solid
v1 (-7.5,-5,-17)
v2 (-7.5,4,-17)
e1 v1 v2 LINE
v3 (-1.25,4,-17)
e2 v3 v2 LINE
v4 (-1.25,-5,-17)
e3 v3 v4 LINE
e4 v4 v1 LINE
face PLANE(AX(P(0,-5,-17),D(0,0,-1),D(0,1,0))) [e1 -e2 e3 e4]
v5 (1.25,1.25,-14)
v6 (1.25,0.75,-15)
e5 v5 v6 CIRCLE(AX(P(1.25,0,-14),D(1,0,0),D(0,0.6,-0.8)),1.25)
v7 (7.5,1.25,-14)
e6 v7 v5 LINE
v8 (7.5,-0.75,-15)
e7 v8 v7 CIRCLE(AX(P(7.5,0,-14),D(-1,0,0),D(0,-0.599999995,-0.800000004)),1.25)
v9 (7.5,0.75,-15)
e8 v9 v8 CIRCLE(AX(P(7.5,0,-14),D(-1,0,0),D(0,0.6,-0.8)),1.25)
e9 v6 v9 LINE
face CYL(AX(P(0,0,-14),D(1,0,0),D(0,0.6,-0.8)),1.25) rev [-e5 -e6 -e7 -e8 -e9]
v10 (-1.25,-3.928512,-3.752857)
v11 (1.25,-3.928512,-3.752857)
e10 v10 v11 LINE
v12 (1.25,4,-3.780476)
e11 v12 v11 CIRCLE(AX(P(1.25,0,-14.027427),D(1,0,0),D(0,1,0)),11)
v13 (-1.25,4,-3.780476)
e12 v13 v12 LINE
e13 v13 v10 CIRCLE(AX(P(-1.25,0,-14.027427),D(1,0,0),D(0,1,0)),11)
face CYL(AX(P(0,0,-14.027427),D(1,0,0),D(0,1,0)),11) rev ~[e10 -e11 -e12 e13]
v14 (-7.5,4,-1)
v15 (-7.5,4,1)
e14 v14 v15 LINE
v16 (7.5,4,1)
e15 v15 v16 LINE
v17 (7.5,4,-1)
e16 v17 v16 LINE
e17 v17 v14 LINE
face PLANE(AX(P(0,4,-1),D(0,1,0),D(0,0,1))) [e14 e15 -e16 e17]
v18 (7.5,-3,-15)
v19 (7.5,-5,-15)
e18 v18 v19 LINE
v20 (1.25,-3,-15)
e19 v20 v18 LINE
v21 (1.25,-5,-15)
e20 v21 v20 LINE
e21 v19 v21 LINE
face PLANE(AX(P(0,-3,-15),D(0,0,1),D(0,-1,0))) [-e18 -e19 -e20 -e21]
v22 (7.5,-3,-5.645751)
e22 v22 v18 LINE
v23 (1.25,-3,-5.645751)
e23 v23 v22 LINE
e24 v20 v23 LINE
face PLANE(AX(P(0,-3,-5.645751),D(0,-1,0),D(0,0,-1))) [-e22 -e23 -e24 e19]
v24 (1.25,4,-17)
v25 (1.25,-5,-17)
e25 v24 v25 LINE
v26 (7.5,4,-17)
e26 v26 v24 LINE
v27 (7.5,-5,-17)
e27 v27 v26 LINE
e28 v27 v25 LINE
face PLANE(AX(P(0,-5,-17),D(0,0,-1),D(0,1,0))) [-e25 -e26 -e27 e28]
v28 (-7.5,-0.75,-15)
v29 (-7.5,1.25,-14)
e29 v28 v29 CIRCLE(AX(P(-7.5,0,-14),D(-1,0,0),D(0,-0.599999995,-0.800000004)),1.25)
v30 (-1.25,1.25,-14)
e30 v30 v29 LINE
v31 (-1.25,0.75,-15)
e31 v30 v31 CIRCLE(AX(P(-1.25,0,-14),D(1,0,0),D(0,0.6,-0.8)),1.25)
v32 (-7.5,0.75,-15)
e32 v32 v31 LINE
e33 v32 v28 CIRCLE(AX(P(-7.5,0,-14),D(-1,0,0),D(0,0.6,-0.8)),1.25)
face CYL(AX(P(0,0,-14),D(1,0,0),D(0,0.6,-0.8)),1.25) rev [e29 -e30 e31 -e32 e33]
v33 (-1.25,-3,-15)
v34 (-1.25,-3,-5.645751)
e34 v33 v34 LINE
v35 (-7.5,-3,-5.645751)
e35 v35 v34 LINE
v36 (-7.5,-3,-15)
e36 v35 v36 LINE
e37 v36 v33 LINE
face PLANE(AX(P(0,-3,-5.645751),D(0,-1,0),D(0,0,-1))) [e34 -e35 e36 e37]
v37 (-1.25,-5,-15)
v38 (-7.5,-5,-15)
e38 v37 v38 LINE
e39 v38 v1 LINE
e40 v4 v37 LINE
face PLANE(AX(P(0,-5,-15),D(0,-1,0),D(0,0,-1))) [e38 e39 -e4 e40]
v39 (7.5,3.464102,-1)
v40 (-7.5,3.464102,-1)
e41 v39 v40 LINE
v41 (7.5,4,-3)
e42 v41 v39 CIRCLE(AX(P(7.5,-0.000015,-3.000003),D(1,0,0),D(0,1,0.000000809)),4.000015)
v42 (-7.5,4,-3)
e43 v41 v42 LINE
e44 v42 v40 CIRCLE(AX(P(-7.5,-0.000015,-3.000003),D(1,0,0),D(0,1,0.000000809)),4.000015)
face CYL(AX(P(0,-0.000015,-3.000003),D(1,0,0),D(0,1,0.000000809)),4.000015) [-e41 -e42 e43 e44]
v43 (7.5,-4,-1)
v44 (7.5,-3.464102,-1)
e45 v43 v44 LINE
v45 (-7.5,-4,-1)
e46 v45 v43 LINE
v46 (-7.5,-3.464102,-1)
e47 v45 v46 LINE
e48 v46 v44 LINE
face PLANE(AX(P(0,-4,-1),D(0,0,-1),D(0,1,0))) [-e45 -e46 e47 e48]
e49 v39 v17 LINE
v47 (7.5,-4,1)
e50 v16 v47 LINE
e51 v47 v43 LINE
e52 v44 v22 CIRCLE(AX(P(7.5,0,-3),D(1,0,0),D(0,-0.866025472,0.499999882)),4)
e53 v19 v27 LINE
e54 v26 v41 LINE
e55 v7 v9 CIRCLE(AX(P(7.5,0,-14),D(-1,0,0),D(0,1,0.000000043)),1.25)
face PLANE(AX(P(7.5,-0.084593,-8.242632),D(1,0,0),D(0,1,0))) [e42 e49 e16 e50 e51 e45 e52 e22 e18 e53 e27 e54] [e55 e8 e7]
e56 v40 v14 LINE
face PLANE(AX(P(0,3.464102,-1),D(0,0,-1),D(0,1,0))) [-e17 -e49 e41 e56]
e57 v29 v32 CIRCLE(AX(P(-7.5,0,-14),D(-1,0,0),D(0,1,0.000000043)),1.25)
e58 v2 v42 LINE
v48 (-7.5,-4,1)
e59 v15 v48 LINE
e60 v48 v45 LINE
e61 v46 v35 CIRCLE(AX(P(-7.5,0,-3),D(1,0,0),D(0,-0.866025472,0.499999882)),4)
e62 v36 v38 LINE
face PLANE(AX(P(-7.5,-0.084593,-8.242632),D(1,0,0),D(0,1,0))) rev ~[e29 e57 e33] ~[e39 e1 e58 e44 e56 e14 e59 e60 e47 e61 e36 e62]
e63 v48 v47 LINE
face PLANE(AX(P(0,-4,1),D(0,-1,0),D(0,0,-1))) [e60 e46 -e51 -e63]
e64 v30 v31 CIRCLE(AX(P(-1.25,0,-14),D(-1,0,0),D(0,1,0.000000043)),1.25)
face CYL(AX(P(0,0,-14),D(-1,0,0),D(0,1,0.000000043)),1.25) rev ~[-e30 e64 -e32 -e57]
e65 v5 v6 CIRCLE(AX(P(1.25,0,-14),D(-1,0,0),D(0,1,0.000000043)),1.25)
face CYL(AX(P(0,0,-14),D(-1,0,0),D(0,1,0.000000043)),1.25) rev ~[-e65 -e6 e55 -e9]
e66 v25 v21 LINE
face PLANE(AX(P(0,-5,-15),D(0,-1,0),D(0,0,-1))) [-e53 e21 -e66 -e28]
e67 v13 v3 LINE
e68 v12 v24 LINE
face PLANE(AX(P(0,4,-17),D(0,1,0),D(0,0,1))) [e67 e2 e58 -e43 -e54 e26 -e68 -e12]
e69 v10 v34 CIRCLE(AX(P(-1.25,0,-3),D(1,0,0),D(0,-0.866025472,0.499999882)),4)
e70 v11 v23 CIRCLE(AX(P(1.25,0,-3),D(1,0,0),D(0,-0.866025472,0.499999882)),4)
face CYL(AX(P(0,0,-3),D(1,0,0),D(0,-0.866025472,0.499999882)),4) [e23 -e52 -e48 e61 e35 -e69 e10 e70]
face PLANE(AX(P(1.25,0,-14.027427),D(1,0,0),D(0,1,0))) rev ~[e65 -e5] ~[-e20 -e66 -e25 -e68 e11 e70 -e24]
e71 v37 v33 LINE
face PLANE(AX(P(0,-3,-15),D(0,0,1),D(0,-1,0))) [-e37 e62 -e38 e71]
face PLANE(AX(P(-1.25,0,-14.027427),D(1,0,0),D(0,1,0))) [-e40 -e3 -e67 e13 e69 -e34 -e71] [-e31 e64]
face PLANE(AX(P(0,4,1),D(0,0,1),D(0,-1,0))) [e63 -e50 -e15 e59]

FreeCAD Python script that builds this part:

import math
import FreeCAD as App
import Part
import Sketcher
from FreeCAD import Vector
Q = App.Units.Quantity

doc = App.newDocument("Part")
body = doc.addObject("PartDesign::Body", "Body")

sketch1 = body.newObject("Sketcher::SketchObject", "Sketch")
sketch1.AttachmentSupport = (doc.getObject("YZ_Plane"), [""])
sketch1.MapMode = "FlatFace"
sketch1.addGeometry(Part.LineSegment(Vector(4, -1, 0), Vector(4, 1, 0)), False)
sketch1.addGeometry(Part.LineSegment(Vector(4, 1, 0), Vector(-4, 1, 0)), False)
sketch1.addGeometry(Part.LineSegment(Vector(-4, 1, 0), Vector(-4, -1, 0)), False)
sketch1.addGeometry(Part.LineSegment(Vector(-4, -1, 0), Vector(-3.5, -1, 0)), False)
sketch1.addGeometry(Part.ArcOfCircle(Part.Circle(Vector(0, -3, 0), Vector(0, 0, 1), 4), math.radians(150), math.radians(221)), False)
sketch1.addGeometry(Part.LineSegment(Vector(-3, -5.6, 0), Vector(-3, -15, 0)), False)
sketch1.addGeometry(Part.LineSegment(Vector(-3, -15, 0), Vector(-5, -15, 0)), False)
sketch1.addGeometry(Part.LineSegment(Vector(-5, -15, 0), Vector(-5, -17, 0)), False)
sketch1.addGeometry(Part.LineSegment(Vector(-5, -17, 0), Vector(4, -17, 0)), False)
sketch1.addGeometry(Part.LineSegment(Vector(4, -17, 0), Vector(4, -3, 0)), False)
sketch1.addGeometry(Part.ArcOfCircle(Part.Circle(Vector(0, -3, 0), Vector(0, 0, 1), 4), math.radians(0), math.radians(30)), False)
sketch1.addGeometry(Part.LineSegment(Vector(3.5, -1, 0), Vector(4, -1, 0)), False)
sketch1.addGeometry(Part.ArcOfCircle(Part.Circle(Vector(0, -14, 0), Vector(0, 0, 1), 1.3), math.radians(0), math.radians(233)), False)
sketch1.addGeometry(Part.ArcOfCircle(Part.Circle(Vector(0, -14, 0), Vector(0, 0, 1), 1.2), math.radians(-53), math.radians(0)), False)
sketch1.addGeometry(Part.ArcOfCircle(Part.Circle(Vector(0, -14, 0), Vector(0, 0, 1), 1.2), math.radians(-127), math.radians(-53)), False)
sketch1.addConstraint(Sketcher.Constraint("Coincident", 0, 2, 1, 1))
sketch1.addConstraint(Sketcher.Constraint("Coincident", 1, 2, 2, 1))
sketch1.addConstraint(Sketcher.Constraint("Coincident", 2, 2, 3, 1))
sketch1.addConstraint(Sketcher.Constraint("Coincident", 3, 2, 4, 1))
sketch1.addConstraint(Sketcher.Constraint("Coincident", 4, 2, 5, 1))
sketch1.addConstraint(Sketcher.Constraint("Coincident", 5, 2, 6, 1))
sketch1.addConstraint(Sketcher.Constraint("Coincident", 6, 2, 7, 1))
sketch1.addConstraint(Sketcher.Constraint("Coincident", 7, 2, 8, 1))
sketch1.addConstraint(Sketcher.Constraint("Coincident", 8, 2, 9, 1))
sketch1.addConstraint(Sketcher.Constraint("Tangent", 9, 2, 10, 1))
sketch1.addConstraint(Sketcher.Constraint("Coincident", 10, 2, 11, 1))
sketch1.addConstraint(Sketcher.Constraint("Coincident", 11, 2, 0, 1))
sketch1.addConstraint(Sketcher.Constraint("Tangent", 12, 1, 13, 2))
sketch1.addConstraint(Sketcher.Constraint("Tangent", 13, 1, 14, 2))
sketch1.addConstraint(Sketcher.Constraint("Tangent", 14, 1, 12, 2))
sketch1.addConstraint(Sketcher.Constraint("Vertical", 0))
sketch1.addConstraint(Sketcher.Constraint("Horizontal", 1))
sketch1.addConstraint(Sketcher.Constraint("Vertical", 2))
sketch1.addConstraint(Sketcher.Constraint("Horizontal", 3))
sketch1.addConstraint(Sketcher.Constraint("Vertical", 5))
sketch1.addConstraint(Sketcher.Constraint("Horizontal", 6))
sketch1.addConstraint(Sketcher.Constraint("Vertical", 7))
sketch1.addConstraint(Sketcher.Constraint("Horizontal", 8))
sketch1.addConstraint(Sketcher.Constraint("Vertical", 9))
sketch1.addConstraint(Sketcher.Constraint("Horizontal", 11))
sketch1.addConstraint(Sketcher.Constraint("Symmetric", 0, 2, 2, 2, -1, 1))
sketch1.addConstraint(Sketcher.Constraint("Symmetric", 3, 2, 10, 2, -2))
sketch1.addConstraint(Sketcher.Constraint("Symmetric", 13, 1, 14, 1, -2))
sketch1.addConstraint(Sketcher.Constraint("PointOnObject", 4, 3, -2))
sketch1.addConstraint(Sketcher.Constraint("Horizontal", 4, 3, 9, 2))
sketch1.addConstraint(Sketcher.Constraint("Horizontal", 14, 3, 12, 1))
sketch1.addConstraint(Sketcher.Constraint("Horizontal", 6, 2, 13, 1))
sketch1.addConstraint(Sketcher.Constraint("Vertical", 0, 2, 8, 2))
sketch1.addConstraint(Sketcher.Constraint("Equal", 6, 0))
sketch1.addConstraint(Sketcher.Constraint("Equal", 2, 7))
sketch1.addConstraint(Sketcher.Constraint("Radius", 4, Q("4 mm")))
sketch1.addConstraint(Sketcher.Constraint("DistanceX", 1, 2, 1, 1, Q("8 mm")))
sketch1.addConstraint(Sketcher.Constraint("DistanceX", 6, 2, 6, 1, Q("2 mm")))
sketch1.addConstraint(Sketcher.Constraint("DistanceX", 8, 1, 8, 2, Q("9 mm")))
sketch1.addConstraint(Sketcher.Constraint("DistanceY", 9, 1, 9, 2, Q("14 mm")))
sketch1.addConstraint(Sketcher.Constraint("Radius", 12, Q("1.25 mm")))
sketch1.addConstraint(Sketcher.Constraint("DistanceY", 4, 3, -1, 1, Q("3 mm")))
sketch1.addConstraint(Sketcher.Constraint("DistanceY", 12, 3, -1, 1, Q("14 mm")))
pad1 = body.newObject("PartDesign::Pad", "Pad")
pad1.Profile = sketch1
pad1.Length = 15
pad1.Midplane = True

sketch2 = body.newObject("Sketcher::SketchObject", "Sketch001")
sketch2.AttachmentSupport = (doc.getObject("YZ_Plane"), [""])
sketch2.MapMode = "FlatFace"
sketch2.addGeometry(Part.Circle(Vector(0, -14, 0), Vector(0, 0, 1), 11), False)
sketch2.addConstraint(Sketcher.Constraint("PointOnObject", 0, 3, -2))
sketch2.addConstraint(Sketcher.Constraint("Diameter", 0, Q("22 mm")))
sketch2.addConstraint(Sketcher.Constraint("DistanceY", 0, 3, -1, 1, Q("14.027427 mm")))
pocket1 = body.newObject("PartDesign::Pocket", "Pocket")
pocket1.Profile = sketch2
pocket1.Length = 2.5
pocket1.Midplane = True

doc.recompute()
